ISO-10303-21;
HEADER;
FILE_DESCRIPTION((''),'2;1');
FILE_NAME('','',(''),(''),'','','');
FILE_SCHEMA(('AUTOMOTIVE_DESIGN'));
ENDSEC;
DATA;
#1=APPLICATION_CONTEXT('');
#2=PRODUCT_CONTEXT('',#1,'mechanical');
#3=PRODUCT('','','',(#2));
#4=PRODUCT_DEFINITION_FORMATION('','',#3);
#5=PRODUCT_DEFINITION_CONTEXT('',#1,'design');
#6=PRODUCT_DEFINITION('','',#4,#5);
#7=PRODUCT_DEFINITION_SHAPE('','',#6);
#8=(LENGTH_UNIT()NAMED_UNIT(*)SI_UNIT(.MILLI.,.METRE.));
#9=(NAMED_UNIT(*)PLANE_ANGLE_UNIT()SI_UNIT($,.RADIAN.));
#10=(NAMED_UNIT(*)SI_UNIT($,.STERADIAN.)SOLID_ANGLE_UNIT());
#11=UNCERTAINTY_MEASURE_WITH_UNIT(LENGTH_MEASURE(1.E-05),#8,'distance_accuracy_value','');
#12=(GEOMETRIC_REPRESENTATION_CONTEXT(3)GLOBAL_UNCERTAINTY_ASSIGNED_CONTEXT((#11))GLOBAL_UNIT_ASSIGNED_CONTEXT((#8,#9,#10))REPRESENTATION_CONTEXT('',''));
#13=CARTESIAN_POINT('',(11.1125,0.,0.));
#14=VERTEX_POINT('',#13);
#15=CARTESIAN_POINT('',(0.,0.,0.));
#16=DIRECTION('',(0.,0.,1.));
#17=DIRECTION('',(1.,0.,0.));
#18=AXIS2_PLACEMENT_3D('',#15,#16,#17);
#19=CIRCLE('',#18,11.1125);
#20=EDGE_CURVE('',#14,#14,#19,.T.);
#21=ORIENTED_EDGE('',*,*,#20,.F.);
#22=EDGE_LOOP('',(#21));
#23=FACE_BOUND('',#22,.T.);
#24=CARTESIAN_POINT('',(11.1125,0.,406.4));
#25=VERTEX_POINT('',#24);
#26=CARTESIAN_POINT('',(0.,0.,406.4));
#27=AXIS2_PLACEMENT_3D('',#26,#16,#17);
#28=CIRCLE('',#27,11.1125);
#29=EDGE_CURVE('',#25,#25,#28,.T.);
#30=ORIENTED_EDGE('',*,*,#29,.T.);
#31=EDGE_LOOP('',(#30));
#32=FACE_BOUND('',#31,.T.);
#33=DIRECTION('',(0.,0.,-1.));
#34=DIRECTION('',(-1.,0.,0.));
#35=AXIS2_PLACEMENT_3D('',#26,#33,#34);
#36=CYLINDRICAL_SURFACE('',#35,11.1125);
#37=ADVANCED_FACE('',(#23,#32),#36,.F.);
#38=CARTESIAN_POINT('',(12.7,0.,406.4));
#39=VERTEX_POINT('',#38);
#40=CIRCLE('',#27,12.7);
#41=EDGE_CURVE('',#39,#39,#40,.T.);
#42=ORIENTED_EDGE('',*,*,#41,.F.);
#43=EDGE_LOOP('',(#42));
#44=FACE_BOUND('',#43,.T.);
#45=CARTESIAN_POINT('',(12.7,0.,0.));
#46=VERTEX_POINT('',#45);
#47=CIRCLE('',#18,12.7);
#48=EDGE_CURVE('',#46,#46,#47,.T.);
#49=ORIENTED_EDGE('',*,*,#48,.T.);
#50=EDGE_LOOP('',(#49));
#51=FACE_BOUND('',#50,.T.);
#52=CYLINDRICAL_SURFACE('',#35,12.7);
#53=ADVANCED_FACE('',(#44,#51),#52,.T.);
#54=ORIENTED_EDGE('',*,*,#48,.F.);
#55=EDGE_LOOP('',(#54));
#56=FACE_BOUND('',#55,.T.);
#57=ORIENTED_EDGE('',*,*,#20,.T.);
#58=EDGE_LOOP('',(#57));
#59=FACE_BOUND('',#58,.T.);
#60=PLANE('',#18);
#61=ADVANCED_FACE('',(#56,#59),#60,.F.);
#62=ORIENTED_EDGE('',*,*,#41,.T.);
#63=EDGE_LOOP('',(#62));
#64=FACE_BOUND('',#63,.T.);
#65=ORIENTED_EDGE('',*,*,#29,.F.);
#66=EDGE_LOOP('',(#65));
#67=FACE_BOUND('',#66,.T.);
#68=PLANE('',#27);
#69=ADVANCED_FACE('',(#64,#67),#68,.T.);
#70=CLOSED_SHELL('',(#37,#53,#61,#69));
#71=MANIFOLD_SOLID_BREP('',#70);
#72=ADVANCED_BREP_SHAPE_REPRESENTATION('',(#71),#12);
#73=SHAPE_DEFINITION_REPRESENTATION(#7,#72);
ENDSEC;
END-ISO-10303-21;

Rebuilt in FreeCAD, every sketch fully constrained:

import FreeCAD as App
import Part
import Sketcher

V = App.Vector
Q = App.Units.Quantity

doc = App.newDocument("Part")
body = doc.addObject("PartDesign::Body", "Body")

sketch1 = body.newObject("Sketcher::SketchObject", "Sketch")
sketch1.AttachmentSupport = (doc.getObject("XY_Plane"), [""])
sketch1.MapMode = "FlatFace"
sketch1.addGeometry([
    Part.Circle(V(0, 0, 0), V(0, 0, 1), 13),
    Part.Circle(V(0, 0, 0), V(0, 0, 1), 11),
], False)
sketch1.addConstraint([
    Sketcher.Constraint("Coincident", 0, 3, -1, 1),
    Sketcher.Constraint("Coincident", 1, 3, -1, 1),
    Sketcher.Constraint("Diameter", 0, Q("1 in")),
    Sketcher.Constraint("Diameter", 1, Q("0.875 in")),
])
pad1 = body.newObject("PartDesign::Pad", "Pad")
pad1.Profile = sketch1
pad1.Length = Q("16 in")

doc.recompute()
